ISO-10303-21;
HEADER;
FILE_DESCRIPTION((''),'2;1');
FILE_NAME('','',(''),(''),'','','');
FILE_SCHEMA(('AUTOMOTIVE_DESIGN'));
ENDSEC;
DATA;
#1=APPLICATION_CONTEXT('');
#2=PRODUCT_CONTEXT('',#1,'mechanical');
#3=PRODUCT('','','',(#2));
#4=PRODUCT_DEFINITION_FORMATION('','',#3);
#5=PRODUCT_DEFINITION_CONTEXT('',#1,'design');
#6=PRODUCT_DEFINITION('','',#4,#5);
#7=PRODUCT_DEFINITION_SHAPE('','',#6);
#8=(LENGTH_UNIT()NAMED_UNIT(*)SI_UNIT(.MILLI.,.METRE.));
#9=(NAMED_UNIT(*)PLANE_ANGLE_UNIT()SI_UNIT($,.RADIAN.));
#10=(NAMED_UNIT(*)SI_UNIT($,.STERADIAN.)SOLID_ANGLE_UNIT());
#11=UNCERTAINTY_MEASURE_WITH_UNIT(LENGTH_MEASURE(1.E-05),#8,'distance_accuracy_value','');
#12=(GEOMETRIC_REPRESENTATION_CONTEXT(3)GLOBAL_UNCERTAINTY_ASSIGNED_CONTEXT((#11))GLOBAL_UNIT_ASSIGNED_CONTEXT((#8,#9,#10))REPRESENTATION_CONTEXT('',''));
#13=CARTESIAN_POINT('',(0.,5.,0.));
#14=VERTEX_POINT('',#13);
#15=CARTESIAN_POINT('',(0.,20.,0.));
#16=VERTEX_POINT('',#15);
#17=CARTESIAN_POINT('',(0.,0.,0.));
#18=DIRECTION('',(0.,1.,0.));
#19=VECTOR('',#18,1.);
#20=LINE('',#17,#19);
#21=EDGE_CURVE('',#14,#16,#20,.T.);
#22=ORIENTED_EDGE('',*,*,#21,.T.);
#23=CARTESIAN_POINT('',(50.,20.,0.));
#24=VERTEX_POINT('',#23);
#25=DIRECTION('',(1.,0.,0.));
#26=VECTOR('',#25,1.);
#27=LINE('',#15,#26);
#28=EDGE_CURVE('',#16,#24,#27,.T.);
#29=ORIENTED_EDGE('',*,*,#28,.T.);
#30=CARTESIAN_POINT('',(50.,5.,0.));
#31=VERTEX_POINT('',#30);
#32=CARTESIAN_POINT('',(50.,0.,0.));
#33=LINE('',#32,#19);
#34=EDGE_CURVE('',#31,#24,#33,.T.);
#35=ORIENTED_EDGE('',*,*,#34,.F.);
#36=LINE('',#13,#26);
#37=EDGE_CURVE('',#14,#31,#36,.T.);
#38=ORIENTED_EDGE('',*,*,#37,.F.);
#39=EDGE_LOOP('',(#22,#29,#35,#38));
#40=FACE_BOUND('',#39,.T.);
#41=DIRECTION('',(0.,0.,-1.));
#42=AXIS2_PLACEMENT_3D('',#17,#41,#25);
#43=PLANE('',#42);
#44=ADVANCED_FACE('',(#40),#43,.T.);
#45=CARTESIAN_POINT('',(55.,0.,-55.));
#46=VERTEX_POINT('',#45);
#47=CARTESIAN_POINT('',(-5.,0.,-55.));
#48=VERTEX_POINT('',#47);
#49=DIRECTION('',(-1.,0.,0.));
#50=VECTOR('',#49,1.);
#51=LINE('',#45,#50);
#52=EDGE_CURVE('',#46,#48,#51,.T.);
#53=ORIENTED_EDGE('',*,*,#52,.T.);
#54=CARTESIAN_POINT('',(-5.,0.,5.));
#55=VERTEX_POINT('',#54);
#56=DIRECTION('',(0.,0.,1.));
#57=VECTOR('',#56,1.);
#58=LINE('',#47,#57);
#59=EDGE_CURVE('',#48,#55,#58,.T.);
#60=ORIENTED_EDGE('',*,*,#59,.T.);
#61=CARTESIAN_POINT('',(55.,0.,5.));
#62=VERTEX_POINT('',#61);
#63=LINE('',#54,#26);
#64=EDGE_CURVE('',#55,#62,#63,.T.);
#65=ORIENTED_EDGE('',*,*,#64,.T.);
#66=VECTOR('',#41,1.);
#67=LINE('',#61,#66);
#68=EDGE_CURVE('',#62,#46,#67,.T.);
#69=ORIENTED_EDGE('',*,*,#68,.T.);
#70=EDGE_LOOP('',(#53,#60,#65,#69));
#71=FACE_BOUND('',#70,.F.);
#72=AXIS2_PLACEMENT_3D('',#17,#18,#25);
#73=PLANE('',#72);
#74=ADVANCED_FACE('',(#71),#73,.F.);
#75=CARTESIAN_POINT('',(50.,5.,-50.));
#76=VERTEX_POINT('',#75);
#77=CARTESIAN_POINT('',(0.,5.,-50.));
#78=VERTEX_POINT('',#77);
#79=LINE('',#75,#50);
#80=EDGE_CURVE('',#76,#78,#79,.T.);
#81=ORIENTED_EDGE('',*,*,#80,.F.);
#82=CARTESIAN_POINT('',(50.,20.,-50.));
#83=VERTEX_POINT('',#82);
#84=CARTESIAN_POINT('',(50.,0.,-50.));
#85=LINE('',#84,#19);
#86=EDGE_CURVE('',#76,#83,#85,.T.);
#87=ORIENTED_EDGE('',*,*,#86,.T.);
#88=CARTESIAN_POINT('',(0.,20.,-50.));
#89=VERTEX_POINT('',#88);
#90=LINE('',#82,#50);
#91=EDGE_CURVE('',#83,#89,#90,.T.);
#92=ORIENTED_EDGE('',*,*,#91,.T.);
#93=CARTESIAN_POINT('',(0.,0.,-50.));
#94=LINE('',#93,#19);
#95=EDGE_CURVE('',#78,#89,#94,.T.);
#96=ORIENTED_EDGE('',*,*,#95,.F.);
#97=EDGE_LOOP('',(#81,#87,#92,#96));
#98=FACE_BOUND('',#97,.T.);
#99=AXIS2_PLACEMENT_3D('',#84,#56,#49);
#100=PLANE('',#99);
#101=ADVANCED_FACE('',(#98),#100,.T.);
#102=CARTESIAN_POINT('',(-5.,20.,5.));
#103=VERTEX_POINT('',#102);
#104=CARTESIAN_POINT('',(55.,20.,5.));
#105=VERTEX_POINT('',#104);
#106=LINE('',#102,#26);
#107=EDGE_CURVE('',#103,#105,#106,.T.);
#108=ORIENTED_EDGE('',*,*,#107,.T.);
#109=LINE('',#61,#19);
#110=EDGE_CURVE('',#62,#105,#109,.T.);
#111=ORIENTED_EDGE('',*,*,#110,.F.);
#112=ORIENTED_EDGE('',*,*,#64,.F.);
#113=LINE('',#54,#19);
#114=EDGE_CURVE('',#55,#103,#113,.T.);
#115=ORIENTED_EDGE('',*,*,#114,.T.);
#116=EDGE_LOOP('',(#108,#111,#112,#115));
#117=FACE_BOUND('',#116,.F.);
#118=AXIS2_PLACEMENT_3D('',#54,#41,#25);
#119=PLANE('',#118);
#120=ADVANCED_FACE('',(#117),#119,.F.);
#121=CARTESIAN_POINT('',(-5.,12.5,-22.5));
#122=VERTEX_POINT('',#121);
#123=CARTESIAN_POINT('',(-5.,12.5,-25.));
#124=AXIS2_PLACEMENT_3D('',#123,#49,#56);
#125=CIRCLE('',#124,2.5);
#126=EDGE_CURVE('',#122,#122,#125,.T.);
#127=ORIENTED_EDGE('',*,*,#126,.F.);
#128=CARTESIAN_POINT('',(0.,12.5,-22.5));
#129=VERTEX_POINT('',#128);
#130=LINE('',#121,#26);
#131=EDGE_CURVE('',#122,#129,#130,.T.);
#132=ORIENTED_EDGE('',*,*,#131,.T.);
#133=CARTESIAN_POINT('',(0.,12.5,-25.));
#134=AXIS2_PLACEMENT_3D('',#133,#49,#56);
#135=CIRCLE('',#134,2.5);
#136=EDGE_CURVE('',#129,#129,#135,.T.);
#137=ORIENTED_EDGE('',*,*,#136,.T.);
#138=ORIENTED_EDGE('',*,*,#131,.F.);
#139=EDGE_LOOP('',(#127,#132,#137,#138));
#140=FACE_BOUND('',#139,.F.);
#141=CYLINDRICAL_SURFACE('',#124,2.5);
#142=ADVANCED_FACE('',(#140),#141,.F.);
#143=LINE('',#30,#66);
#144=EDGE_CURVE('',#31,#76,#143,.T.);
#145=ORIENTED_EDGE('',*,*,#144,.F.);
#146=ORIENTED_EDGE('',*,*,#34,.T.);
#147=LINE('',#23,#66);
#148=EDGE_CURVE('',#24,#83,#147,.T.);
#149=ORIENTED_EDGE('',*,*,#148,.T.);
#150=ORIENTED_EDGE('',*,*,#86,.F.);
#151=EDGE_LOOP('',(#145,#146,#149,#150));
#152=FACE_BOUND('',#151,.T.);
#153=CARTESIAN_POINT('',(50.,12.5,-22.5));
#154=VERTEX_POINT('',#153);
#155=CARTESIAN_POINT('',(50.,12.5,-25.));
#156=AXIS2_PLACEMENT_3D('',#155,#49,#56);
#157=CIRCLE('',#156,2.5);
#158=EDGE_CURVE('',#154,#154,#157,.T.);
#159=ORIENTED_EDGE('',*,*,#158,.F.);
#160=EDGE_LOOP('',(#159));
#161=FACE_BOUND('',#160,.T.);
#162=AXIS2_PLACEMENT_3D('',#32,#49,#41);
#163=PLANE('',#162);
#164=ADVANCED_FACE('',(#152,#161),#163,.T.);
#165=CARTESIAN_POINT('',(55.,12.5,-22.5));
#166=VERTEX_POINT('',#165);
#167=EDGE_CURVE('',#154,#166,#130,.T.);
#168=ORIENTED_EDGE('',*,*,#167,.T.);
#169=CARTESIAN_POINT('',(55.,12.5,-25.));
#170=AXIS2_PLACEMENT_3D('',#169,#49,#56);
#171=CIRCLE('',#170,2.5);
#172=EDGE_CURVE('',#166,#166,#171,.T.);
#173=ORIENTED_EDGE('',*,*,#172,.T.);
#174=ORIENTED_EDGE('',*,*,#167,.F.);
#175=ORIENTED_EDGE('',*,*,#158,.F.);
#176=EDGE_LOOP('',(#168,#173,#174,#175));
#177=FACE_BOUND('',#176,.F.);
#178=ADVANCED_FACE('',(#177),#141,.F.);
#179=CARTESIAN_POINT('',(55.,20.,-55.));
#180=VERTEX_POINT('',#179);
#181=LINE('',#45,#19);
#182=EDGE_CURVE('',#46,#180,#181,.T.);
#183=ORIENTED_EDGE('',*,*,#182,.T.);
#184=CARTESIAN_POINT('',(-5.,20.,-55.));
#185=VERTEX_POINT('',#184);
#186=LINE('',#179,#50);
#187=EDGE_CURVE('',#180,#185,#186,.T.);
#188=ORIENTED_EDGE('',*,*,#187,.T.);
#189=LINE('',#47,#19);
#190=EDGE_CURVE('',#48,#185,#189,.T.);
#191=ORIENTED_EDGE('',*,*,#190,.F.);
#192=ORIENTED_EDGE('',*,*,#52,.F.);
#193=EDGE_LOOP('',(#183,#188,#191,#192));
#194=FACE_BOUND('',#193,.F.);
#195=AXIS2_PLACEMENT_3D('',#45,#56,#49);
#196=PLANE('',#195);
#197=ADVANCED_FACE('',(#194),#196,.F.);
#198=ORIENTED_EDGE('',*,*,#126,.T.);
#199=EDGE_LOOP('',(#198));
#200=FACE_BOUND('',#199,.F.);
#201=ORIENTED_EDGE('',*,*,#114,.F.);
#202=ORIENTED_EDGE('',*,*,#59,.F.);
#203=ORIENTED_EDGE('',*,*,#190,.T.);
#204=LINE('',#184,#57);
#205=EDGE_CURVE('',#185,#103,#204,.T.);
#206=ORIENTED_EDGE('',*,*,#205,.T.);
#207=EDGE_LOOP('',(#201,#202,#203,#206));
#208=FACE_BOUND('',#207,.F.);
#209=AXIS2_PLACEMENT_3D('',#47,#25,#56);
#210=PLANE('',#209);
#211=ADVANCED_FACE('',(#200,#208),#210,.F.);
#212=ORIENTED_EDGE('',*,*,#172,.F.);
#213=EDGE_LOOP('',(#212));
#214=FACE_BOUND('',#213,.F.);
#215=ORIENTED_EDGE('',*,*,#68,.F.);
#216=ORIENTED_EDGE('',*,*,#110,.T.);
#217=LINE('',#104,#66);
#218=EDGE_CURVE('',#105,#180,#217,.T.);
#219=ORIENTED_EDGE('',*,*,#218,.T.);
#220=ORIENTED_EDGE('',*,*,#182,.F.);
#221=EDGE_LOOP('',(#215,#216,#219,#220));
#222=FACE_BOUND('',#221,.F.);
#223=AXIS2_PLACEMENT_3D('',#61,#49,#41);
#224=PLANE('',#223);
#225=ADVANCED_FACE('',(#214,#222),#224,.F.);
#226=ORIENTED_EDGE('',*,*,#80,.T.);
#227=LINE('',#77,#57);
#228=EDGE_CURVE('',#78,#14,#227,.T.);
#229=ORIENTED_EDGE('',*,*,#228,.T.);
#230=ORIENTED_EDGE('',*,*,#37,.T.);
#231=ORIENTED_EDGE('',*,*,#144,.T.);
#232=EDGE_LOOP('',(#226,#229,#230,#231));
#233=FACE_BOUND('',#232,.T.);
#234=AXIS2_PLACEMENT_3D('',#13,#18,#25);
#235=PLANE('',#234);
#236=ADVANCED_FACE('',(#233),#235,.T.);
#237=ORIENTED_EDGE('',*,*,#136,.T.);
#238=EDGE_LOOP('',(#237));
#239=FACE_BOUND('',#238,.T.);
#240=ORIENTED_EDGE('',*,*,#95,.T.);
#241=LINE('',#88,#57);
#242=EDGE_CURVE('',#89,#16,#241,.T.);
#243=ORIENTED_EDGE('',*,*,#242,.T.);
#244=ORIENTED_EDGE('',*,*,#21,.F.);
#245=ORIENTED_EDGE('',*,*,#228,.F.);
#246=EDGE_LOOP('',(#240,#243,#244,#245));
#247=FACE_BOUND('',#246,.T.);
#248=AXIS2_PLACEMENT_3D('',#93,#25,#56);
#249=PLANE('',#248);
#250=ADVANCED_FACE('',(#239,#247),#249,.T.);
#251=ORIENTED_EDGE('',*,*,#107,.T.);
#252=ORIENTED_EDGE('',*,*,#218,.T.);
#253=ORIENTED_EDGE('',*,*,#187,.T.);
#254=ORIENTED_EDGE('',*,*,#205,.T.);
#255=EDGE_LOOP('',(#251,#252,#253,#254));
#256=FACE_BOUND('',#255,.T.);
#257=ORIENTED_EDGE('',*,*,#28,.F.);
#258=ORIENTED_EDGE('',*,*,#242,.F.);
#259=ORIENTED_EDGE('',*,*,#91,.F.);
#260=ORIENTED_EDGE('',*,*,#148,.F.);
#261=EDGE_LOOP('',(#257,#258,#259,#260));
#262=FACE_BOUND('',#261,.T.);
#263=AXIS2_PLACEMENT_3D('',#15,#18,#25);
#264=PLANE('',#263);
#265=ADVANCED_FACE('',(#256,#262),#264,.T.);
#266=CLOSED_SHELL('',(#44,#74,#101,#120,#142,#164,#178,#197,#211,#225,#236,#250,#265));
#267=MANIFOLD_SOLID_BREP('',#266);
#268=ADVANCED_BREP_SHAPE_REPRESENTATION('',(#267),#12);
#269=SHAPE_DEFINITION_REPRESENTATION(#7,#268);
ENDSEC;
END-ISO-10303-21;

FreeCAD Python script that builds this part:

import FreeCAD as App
import Part
import Sketcher

doc = App.newDocument("Part")
body = doc.addObject("PartDesign::Body", "Body")

# Sketch on XZ plane
sketch1 = body.newObject("Sketcher::SketchObject", "Sketch")
sketch1.AttachmentSupport = (doc.getObject("XZ_Plane"), [""])
sketch1.MapMode = "FlatFace"
sketch1.addGeometry([
    Part.LineSegment(App.Vector(-5, -55, 0), App.Vector(-5, 5, 0)),  # 0
    Part.LineSegment(App.Vector(-5, 5, 0), App.Vector(55, 5, 0)),  # 1
    Part.LineSegment(App.Vector(55, 5, 0), App.Vector(55, -55, 0)),  # 2
    Part.LineSegment(App.Vector(55, -55, 0), App.Vector(-5, -55, 0)),  # 3
    Part.LineSegment(App.Vector(50, 0, 0), App.Vector(0, 0, 0)),  # 4
    Part.LineSegment(App.Vector(0, 0, 0), App.Vector(0, -50, 0)),  # 5
    Part.LineSegment(App.Vector(0, -50, 0), App.Vector(50, -50, 0)),  # 6
    Part.LineSegment(App.Vector(50, -50, 0), App.Vector(50, 0, 0)),  # 7
], False)
sketch1.addConstraint([
    Sketcher.Constraint("Coincident", 0, 2, 1, 1),
    Sketcher.Constraint("Coincident", 1, 2, 2, 1),
    Sketcher.Constraint("Coincident", 2, 2, 3, 1),
    Sketcher.Constraint("Coincident", 3, 2, 0, 1),
    Sketcher.Constraint("Coincident", 4, 2, 5, 1),
    Sketcher.Constraint("Coincident", 5, 2, 6, 1),
    Sketcher.Constraint("Coincident", 6, 2, 7, 1),
    Sketcher.Constraint("Coincident", 7, 2, 4, 1),
    Sketcher.Constraint("Vertical", 0),
    Sketcher.Constraint("Horizontal", 1),
    Sketcher.Constraint("Vertical", 2),
    Sketcher.Constraint("Horizontal", 3),
    Sketcher.Constraint("Horizontal", 4),
    Sketcher.Constraint("Vertical", 5),
    Sketcher.Constraint("Horizontal", 6),
    Sketcher.Constraint("Vertical", 7),
    Sketcher.Constraint("Coincident", 4, 2, -1, 1),
    Sketcher.Constraint("Equal", 3, 0),
    Sketcher.Constraint("Equal", 6, 5),
    Sketcher.Constraint("DistanceX", 4, 2, 4, 1, 50.0),
    Sketcher.Constraint("DistanceX", 0, 2, -1, 1, 5.0),
    Sketcher.Constraint("DistanceY", -1, 1, 0, 2, 5.0),
    Sketcher.Constraint("DistanceY", 3, 2, 5, 2, 5.0),
])
pad1 = body.newObject("PartDesign::Pad", "Pad")
pad1.Profile = sketch1
pad1.Length = 20
pad1.Reversed = True

# Sketch on XZ plane
sketch2 = body.newObject("Sketcher::SketchObject", "Sketch001")
sketch2.AttachmentSupport = (doc.getObject("XZ_Plane"), [""])
sketch2.MapMode = "FlatFace"
sketch2.addGeometry([
    Part.LineSegment(App.Vector(0, -50, 0), App.Vector(0, 0, 0)),
    Part.LineSegment(App.Vector(0, 0, 0), App.Vector(50, 0, 0)),
    Part.LineSegment(App.Vector(50, 0, 0), App.Vector(50, -50, 0)),
    Part.LineSegment(App.Vector(50, -50, 0), App.Vector(0, -50, 0)),
], False)
sketch2.addConstraint([
    Sketcher.Constraint("Coincident", 0, 2, 1, 1),
    Sketcher.Constraint("Coincident", 1, 2, 2, 1),
    Sketcher.Constraint("Coincident", 2, 2, 3, 1),
    Sketcher.Constraint("Coincident", 3, 2, 0, 1),
    Sketcher.Constraint("Vertical", 0),
    Sketcher.Constraint("Horizontal", 1),
    Sketcher.Constraint("Vertical", 2),
    Sketcher.Constraint("Horizontal", 3),
    Sketcher.Constraint("Coincident", 0, 2, -1, 1),
    Sketcher.Constraint("Equal", 3, 0),
    Sketcher.Constraint("DistanceX", 1, 1, 1, 2, 50.0),
])
pad2 = body.newObject("PartDesign::Pad", "Pad001")
pad2.Profile = sketch2
pad2.Length = 5
pad2.Reversed = True

# Sketch on YZ plane
sketch3 = body.newObject("Sketcher::SketchObject", "Sketch002")
sketch3.AttachmentSupport = (doc.getObject("YZ_Plane"), [""])
sketch3.MapMode = "FlatFace"
sketch3.AttachmentOffset = App.Placement(App.Vector(0, 0, -5), App.Rotation())
sketch3.addGeometry(Part.Circle(App.Vector(12.5, -25, 0), App.Vector(0, 0, 1), 2.5), False)
sketch3.addConstraint([
    Sketcher.Constraint("Diameter", 0, 5.0),
    Sketcher.Constraint("DistanceY", 0, 3, -1, 1, 25.0),
    Sketcher.Constraint("DistanceX", -1, 1, 0, 3, 12.5),
])
pocket1 = body.newObject("PartDesign::Pocket", "Pocket")
pocket1.Profile = sketch3
pocket1.Length = 163
pocket1.Reversed = True

doc.recompute()
